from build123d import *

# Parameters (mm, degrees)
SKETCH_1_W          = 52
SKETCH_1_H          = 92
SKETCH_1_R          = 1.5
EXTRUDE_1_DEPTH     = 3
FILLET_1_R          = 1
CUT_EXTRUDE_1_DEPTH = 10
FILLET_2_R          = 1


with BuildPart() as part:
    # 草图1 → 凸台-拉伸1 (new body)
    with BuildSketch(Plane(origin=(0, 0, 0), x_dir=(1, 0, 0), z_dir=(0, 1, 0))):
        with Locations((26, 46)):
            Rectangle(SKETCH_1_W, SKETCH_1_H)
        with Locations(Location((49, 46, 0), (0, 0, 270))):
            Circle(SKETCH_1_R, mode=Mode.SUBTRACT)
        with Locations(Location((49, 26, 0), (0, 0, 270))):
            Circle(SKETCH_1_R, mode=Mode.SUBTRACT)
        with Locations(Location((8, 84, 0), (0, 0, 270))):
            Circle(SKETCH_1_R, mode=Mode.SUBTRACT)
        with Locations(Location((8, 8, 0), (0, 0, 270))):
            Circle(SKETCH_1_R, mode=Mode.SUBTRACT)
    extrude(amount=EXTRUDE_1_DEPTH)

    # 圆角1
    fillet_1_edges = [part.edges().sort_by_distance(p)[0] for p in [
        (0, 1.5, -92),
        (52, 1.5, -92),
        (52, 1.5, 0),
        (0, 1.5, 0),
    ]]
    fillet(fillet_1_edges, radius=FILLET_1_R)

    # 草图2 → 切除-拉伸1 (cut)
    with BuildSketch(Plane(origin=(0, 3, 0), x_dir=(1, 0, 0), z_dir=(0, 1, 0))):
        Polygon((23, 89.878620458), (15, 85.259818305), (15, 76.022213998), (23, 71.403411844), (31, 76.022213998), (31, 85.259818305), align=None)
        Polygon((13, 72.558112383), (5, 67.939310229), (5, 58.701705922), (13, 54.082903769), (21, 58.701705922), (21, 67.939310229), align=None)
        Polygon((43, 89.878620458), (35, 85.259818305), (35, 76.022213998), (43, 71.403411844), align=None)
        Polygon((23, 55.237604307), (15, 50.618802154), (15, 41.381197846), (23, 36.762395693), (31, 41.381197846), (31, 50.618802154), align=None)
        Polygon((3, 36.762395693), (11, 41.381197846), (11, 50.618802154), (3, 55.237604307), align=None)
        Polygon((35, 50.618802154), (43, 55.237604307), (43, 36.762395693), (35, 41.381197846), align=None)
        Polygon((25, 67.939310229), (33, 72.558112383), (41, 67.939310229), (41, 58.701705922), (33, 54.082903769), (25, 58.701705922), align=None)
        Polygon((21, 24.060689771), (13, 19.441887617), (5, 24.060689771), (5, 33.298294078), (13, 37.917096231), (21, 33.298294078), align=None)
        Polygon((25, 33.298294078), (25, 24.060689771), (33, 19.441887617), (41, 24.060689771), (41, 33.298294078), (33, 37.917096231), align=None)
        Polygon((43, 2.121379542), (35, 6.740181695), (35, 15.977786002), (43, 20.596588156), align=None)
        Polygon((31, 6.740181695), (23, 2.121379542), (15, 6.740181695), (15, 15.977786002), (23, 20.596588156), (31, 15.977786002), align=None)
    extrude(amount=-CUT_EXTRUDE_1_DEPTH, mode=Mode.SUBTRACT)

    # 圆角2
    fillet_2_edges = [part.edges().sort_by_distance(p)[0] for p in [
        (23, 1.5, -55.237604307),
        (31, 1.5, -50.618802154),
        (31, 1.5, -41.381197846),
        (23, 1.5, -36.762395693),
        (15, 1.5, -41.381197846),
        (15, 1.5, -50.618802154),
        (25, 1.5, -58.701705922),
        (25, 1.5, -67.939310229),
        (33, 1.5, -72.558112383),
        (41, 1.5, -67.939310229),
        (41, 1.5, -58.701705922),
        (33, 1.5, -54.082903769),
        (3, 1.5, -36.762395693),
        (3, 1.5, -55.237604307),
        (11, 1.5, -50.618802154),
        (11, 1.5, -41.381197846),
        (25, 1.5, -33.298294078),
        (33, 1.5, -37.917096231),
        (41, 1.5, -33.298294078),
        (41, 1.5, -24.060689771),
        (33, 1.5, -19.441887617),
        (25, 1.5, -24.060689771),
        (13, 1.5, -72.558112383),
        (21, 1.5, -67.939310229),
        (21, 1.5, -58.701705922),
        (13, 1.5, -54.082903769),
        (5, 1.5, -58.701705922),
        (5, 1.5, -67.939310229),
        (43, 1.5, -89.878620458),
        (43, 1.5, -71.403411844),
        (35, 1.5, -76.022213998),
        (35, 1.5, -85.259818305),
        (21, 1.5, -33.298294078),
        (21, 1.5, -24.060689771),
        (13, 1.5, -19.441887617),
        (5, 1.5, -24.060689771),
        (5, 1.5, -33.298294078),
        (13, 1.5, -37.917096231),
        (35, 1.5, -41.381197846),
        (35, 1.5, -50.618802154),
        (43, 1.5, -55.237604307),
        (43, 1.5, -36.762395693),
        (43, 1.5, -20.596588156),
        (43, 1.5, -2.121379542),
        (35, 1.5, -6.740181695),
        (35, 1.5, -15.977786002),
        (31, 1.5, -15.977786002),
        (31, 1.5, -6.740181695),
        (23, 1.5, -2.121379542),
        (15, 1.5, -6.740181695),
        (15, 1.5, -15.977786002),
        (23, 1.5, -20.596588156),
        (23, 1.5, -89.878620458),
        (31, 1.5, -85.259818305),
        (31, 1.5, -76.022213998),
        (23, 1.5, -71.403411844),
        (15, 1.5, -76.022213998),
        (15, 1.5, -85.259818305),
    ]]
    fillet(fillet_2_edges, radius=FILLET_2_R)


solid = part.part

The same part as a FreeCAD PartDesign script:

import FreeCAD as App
import Part
import Sketcher

V = App.Vector
Q = App.Units.Quantity


def edges_at(feature, points):
    """Names of the edges that pass closest to the given points."""
    edges = feature.Shape.Edges
    near = lambda p: min(range(len(edges)), key=lambda i: edges[i].distToShape(Part.Vertex(*p))[0])
    return sorted({f"Edge{near(p) + 1}" for p in points})


def add_polygon(sketch, points):
    """Adds a closed chain of lines whose ends are joined by coincident constraints."""
    first, n = sketch.GeometryCount, len(points)
    for a, b in zip(points, points[1:] + points[:1]):
        sketch.addGeometry(Part.LineSegment(App.Vector(*a, 0), App.Vector(*b, 0)), False)
    for i in range(n):
        sketch.addConstraint(Sketcher.Constraint("Coincident", first + i, 2, first + (i + 1) % n, 1))

doc = App.newDocument("Part")
body = doc.addObject("PartDesign::Body", "Body")

# Sketch on XZ plane
sketch1 = doc.addObject("Sketcher::SketchObject", "Sketch")
body.addObject(sketch1)
sketch1.AttachmentSupport = (doc.XZ_Plane, [""])
sketch1.MapMode = "FlatFace"
add_polygon(sketch1, [(0, -92), (0, 0), (52, 0), (52, -92)])  # lines 0-3
sketch1.addGeometry(Part.Circle(V(8, -8, 0), V(0, 0, 1), 1.5), False)  # 4
sketch1.addGeometry(Part.Circle(V(49, -26, 0), V(0, 0, 1), 1.5), False)  # 5
sketch1.addGeometry(Part.Circle(V(8, -84, 0), V(0, 0, 1), 1.5), False)  # 6
sketch1.addGeometry(Part.Circle(V(49, -46, 0), V(0, 0, 1), 1.5), False)  # 7
sketch1.addConstraint(Sketcher.Constraint("Vertical", 0))
sketch1.addConstraint(Sketcher.Constraint("Horizontal", 1))
sketch1.addConstraint(Sketcher.Constraint("Vertical", 2))
sketch1.addConstraint(Sketcher.Constraint("Horizontal", 3))
sketch1.addConstraint(Sketcher.Constraint("Coincident", 0, 2, -1, 1))
sketch1.addConstraint(Sketcher.Constraint("Equal", 4, 5))
sketch1.addConstraint(Sketcher.Constraint("Equal", 5, 6))
sketch1.addConstraint(Sketcher.Constraint("Equal", 6, 7))
sketch1.addConstraint(Sketcher.Constraint("Vertical", 4, 3, 6, 3))
sketch1.addConstraint(Sketcher.Constraint("Vertical", 5, 3, 7, 3))
sketch1.addConstraint(Sketcher.Constraint("Diameter", 4, Q("3 mm")))
sketch1.addConstraint(Sketcher.Constraint("DistanceX", 1, 1, 1, 2, Q("52 mm")))
sketch1.addConstraint(Sketcher.Constraint("DistanceY", 0, 1, 0, 2, Q("92 mm")))
sketch1.addConstraint(Sketcher.Constraint("DistanceX", -1, 1, 4, 3, Q("8 mm")))
sketch1.addConstraint(Sketcher.Constraint("DistanceY", 4, 3, -1, 1, Q("8 mm")))
sketch1.addConstraint(Sketcher.Constraint("DistanceX", -1, 1, 5, 3, Q("49 mm")))
sketch1.addConstraint(Sketcher.Constraint("DistanceY", 5, 3, -1, 1, Q("26 mm")))
sketch1.addConstraint(Sketcher.Constraint("DistanceY", 6, 3, -1, 1, Q("84 mm")))
sketch1.addConstraint(Sketcher.Constraint("DistanceY", 7, 3, -1, 1, Q("46 mm")))
pad1 = doc.addObject("PartDesign::Pad", "Pad")
body.addObject(pad1)
pad1.Profile = sketch1
pad1.Length = 3
pad1.Reversed = True
doc.recompute()

fillet = doc.addObject("PartDesign::Fillet", "Fillet")
body.addObject(fillet)
fillet.Base = (pad1, edges_at(pad1, [
    (0, 1.5, -92),
    (52, 1.5, -92),
    (52, 1.5, 0),
    (0, 1.5, 0),
]))
fillet.Radius = 1

# Sketch on XZ plane
sketch2 = doc.addObject("Sketcher::SketchObject", "Sketch001")
body.addObject(sketch2)
sketch2.AttachmentSupport = (doc.XZ_Plane, [""])
sketch2.MapMode = "FlatFace"
sketch2.AttachmentOffset = App.Placement(V(0, 0, -3), App.Rotation())
add_polygon(sketch2, [(23, -90), (15, -85), (15, -76), (23, -71), (31, -76), (31, -85)])  # lines 0-5
add_polygon(sketch2, [(13, -73), (5, -68), (5, -59), (13, -54), (21, -59), (21, -68)])  # lines 6-11
add_polygon(sketch2, [(43, -90), (35, -85), (35, -76), (43, -71)])  # lines 12-15
add_polygon(sketch2, [(23, -55), (15, -51), (15, -41), (23, -37), (31, -41), (31, -51)])  # lines 16-21
add_polygon(sketch2, [(3, -37), (11, -41), (11, -51), (3, -55)])  # lines 22-25
add_polygon(sketch2, [(43, -55), (35, -51), (35, -41), (43, -37)])  # lines 26-29
add_polygon(sketch2, [(33, -73), (25, -68), (25, -59), (33, -54), (41, -59), (41, -68)])  # lines 30-35
add_polygon(sketch2, [(13, -19), (21, -24), (21, -33), (13, -38), (5, -33), (5, -24)])  # lines 36-41
add_polygon(sketch2, [(25, -33), (25, -24), (33, -19), (41, -24), (41, -33), (33, -38)])  # lines 42-47
add_polygon(sketch2, [(35, -7), (43, -2), (43, -21), (35, -16)])  # lines 48-51
add_polygon(sketch2, [(23, -2), (31, -7), (31, -16), (23, -21), (15, -16), (15, -7)])  # lines 52-57
sketch2.addConstraint(Sketcher.Constraint("Vertical", 1))
sketch2.addConstraint(Sketcher.Constraint("Vertical", 4))
sketch2.addConstraint(Sketcher.Constraint("Vertical", 7))
sketch2.addConstraint(Sketcher.Constraint("Vertical", 10))
sketch2.addConstraint(Sketcher.Constraint("Vertical", 13))
sketch2.addConstraint(Sketcher.Constraint("Vertical", 15))
sketch2.addConstraint(Sketcher.Constraint("Vertical", 17))
sketch2.addConstraint(Sketcher.Constraint("Vertical", 20))
sketch2.addConstraint(Sketcher.Constraint("Vertical", 23))
sketch2.addConstraint(Sketcher.Constraint("Vertical", 25))
sketch2.addConstraint(Sketcher.Constraint("Vertical", 27))
sketch2.addConstraint(Sketcher.Constraint("Vertical", 29))
sketch2.addConstraint(Sketcher.Constraint("Vertical", 31))
sketch2.addConstraint(Sketcher.Constraint("Vertical", 34))
sketch2.addConstraint(Sketcher.Constraint("Vertical", 37))
sketch2.addConstraint(Sketcher.Constraint("Vertical", 40))
sketch2.addConstraint(Sketcher.Constraint("Vertical", 42))
sketch2.addConstraint(Sketcher.Constraint("Vertical", 45))
sketch2.addConstraint(Sketcher.Constraint("Vertical", 49))
sketch2.addConstraint(Sketcher.Constraint("Vertical", 51))
sketch2.addConstraint(Sketcher.Constraint("Vertical", 53))
sketch2.addConstraint(Sketcher.Constraint("Vertical", 56))
sketch2.addConstraint(Sketcher.Constraint("Parallel", 0, 3))
sketch2.addConstraint(Sketcher.Constraint("Parallel", 2, 5))
sketch2.addConstraint(Sketcher.Constraint("Parallel", 3, 6))
sketch2.addConstraint(Sketcher.Constraint("Parallel", 5, 8))
sketch2.addConstraint(Sketcher.Constraint("Parallel", 6, 9))
sketch2.addConstraint(Sketcher.Constraint("Parallel", 8, 11))
sketch2.addConstraint(Sketcher.Constraint("Parallel", 9, 12))
sketch2.addConstraint(Sketcher.Constraint("Parallel", 11, 14))
sketch2.addConstraint(Sketcher.Constraint("Parallel", 12, 16))
sketch2.addConstraint(Sketcher.Constraint("Parallel", 14, 18))
sketch2.addConstraint(Sketcher.Constraint("Parallel", 16, 19))
sketch2.addConstraint(Sketcher.Constraint("Parallel", 18, 21))
sketch2.addConstraint(Sketcher.Constraint("Parallel", 19, 22))
sketch2.addConstraint(Sketcher.Constraint("Parallel", 21, 24))
sketch2.addConstraint(Sketcher.Constraint("Parallel", 22, 26))
sketch2.addConstraint(Sketcher.Constraint("Parallel", 24, 28))
sketch2.addConstraint(Sketcher.Constraint("Parallel", 26, 30))
sketch2.addConstraint(Sketcher.Constraint("Parallel", 28, 32))
sketch2.addConstraint(Sketcher.Constraint("Parallel", 30, 33))
sketch2.addConstraint(Sketcher.Constraint("Parallel", 32, 35))
sketch2.addConstraint(Sketcher.Constraint("Parallel", 33, 36))
sketch2.addConstraint(Sketcher.Constraint("Parallel", 35, 38))
sketch2.addConstraint(Sketcher.Constraint("Parallel", 36, 39))
sketch2.addConstraint(Sketcher.Constraint("Parallel", 38, 41))
sketch2.addConstraint(Sketcher.Constraint("Parallel", 41, 43))
sketch2.addConstraint(Sketcher.Constraint("Parallel", 39, 44))
sketch2.addConstraint(Sketcher.Constraint("Parallel", 43, 46))
sketch2.addConstraint(Sketcher.Constraint("Parallel", 44, 47))
sketch2.addConstraint(Sketcher.Constraint("Parallel", 46, 48))
sketch2.addConstraint(Sketcher.Constraint("Parallel", 47, 50))
sketch2.addConstraint(Sketcher.Constraint("Parallel", 50, 52))
sketch2.addConstraint(Sketcher.Constraint("Parallel", 48, 54))
sketch2.addConstraint(Sketcher.Constraint("Parallel", 52, 55))
sketch2.addConstraint(Sketcher.Constraint("Parallel", 54, 57))
sketch2.addConstraint(Sketcher.Constraint("Horizontal", 1, 2, 3, 2))
sketch2.addConstraint(Sketcher.Constraint("Horizontal", 0, 2, 4, 2))
sketch2.addConstraint(Sketcher.Constraint("Horizontal", 7, 2, 9, 2))
sketch2.addConstraint(Sketcher.Constraint("Horizontal", 6, 2, 10, 2))
sketch2.addConstraint(Sketcher.Constraint("Horizontal", 4, 2, 12, 2))
sketch2.addConstraint(Sketcher.Constraint("Horizontal", 3, 2, 13, 2))
sketch2.addConstraint(Sketcher.Constraint("Horizontal", 2, 2, 14, 2))
sketch2.addConstraint(Sketcher.Constraint("Horizontal", 5, 2, 15, 2))
sketch2.addConstraint(Sketcher.Constraint("Horizontal", 17, 2, 19, 2))
sketch2.addConstraint(Sketcher.Constraint("Horizontal", 16, 2, 20, 2))
sketch2.addConstraint(Sketcher.Constraint("Horizontal", 19, 2, 22, 2))
sketch2.addConstraint(Sketcher.Constraint("Horizontal", 20, 2, 23, 2))
sketch2.addConstraint(Sketcher.Constraint("Horizontal", 21, 2, 24, 2))
sketch2.addConstraint(Sketcher.Constraint("Horizontal", 23, 2, 26, 2))
sketch2.addConstraint(Sketcher.Constraint("Horizontal", 22, 2, 27, 2))
sketch2.addConstraint(Sketcher.Constraint("Horizontal", 25, 2, 28, 2))
sketch2.addConstraint(Sketcher.Constraint("Horizontal", 10, 2, 30, 2))
sketch2.addConstraint(Sketcher.Constraint("Horizontal", 9, 2, 31, 2))
sketch2.addConstraint(Sketcher.Constraint("Horizontal", 8, 2, 32, 2))
sketch2.addConstraint(Sketcher.Constraint("Horizontal", 31, 2, 33, 2))
sketch2.addConstraint(Sketcher.Constraint("Horizontal", 30, 2, 34, 2))
sketch2.addConstraint(Sketcher.Constraint("Horizontal", 37, 2, 39, 2))
sketch2.addConstraint(Sketcher.Constraint("Horizontal", 36, 2, 40, 2))
sketch2.addConstraint(Sketcher.Constraint("Horizontal", 40, 2, 42, 2))
sketch2.addConstraint(Sketcher.Constraint("Horizontal", 41, 2, 43, 2))
sketch2.addConstraint(Sketcher.Constraint("Horizontal", 42, 2, 44, 2))
sketch2.addConstraint(Sketcher.Constraint("Horizontal", 39, 2, 45, 2))
sketch2.addConstraint(Sketcher.Constraint("Horizontal", 38, 2, 46, 2))
sketch2.addConstraint(Sketcher.Constraint("Horizontal", 51, 2, 52, 2))
sketch2.addConstraint(Sketcher.Constraint("Horizontal", 50, 2, 53, 2))
sketch2.addConstraint(Sketcher.Constraint("Horizontal", 49, 2, 54, 2))
sketch2.addConstraint(Sketcher.Constraint("Horizontal", 53, 2, 55, 2))
sketch2.addConstraint(Sketcher.Constraint("Horizontal", 52, 2, 56, 2))
sketch2.addConstraint(Sketcher.Constraint("Vertical", 1, 2, 16, 2))
sketch2.addConstraint(Sketcher.Constraint("Vertical", 5, 2, 18, 2))
sketch2.addConstraint(Sketcher.Constraint("Vertical", 13, 2, 26, 2))
sketch2.addConstraint(Sketcher.Constraint("Vertical", 10, 2, 36, 2))
sketch2.addConstraint(Sketcher.Constraint("Vertical", 11, 2, 38, 2))
sketch2.addConstraint(Sketcher.Constraint("Vertical", 31, 2, 42, 2))
sketch2.addConstraint(Sketcher.Constraint("Vertical", 29, 2, 48, 2))
sketch2.addConstraint(Sketcher.Constraint("Vertical", 27, 2, 50, 2))
sketch2.addConstraint(Sketcher.Constraint("Vertical", 20, 2, 52, 2))
sketch2.addConstraint(Sketcher.Constraint("Equal", 4, 7))
sketch2.addConstraint(Sketcher.Constraint("Equal", 13, 17))
sketch2.addConstraint(Sketcher.Constraint("Equal", 34, 37))
sketch2.addConstraint(Sketcher.Constraint("Equal", 29, 49))
sketch2.addConstraint(Sketcher.Constraint("Equal", 5, 6))
sketch2.addConstraint(Sketcher.Constraint("Angle", 0, Q("150 deg")))
sketch2.addConstraint(Sketcher.Constraint("DistanceX", -1, 1, 0, 2, Q("15 mm")))
sketch2.addConstraint(Sketcher.Constraint("DistanceX", -1, 1, 2, 2, Q("23 mm")))
sketch2.addConstraint(Sketcher.Constraint("DistanceX", -1, 1, 6, 2, Q("5 mm")))
sketch2.addConstraint(Sketcher.Constraint("DistanceX", -1, 1, 12, 2, Q("35 mm")))
sketch2.addConstraint(Sketcher.Constraint("DistanceX", -1, 1, 22, 2, Q("11 mm")))
sketch2.addConstraint(Sketcher.Constraint("DistanceX", -1, 1, 30, 2, Q("25 mm")))
sketch2.addConstraint(Sketcher.Constraint("DistanceY", 15, 2, 15, 1, Q("18.475209 mm")))
sketch2.addConstraint(Sketcher.Constraint("DistanceY", 2, 2, 6, 2, Q("3.464102 mm")))
sketch2.addConstraint(Sketcher.Constraint("DistanceY", 8, 2, 16, 2, Q("3.464102 mm")))
sketch2.addConstraint(Sketcher.Constraint("DistanceY", 18, 2, 37, 2, Q("3.464102 mm")))
sketch2.addConstraint(Sketcher.Constraint("DistanceY", 44, 2, 49, 2, Q("3.464102 mm")))
sketch2.addConstraint(Sketcher.Constraint("DistanceY", 0, 2, -1, 1, Q("85.259818 mm")))
pocket1 = doc.addObject("PartDesign::Pocket", "Pocket")
body.addObject(pocket1)
pocket1.Profile = sketch2
pocket1.Length = 10
pocket1.Reversed = True
doc.recompute()

fillet2 = doc.addObject("PartDesign::Fillet", "Fillet001")
body.addObject(fillet2)
fillet2.Base = (pocket1, edges_at(pocket1, [
    (23, 1.5, -55.238),
    (31, 1.5, -50.619),
    (31, 1.5, -41.381),
    (23, 1.5, -36.762),
    (15, 1.5, -41.381),
    (15, 1.5, -50.619),
    (25, 1.5, -58.702),
    (25, 1.5, -67.939),
    (33, 1.5, -72.558),
    (41, 1.5, -67.939),
    (41, 1.5, -58.702),
    (33, 1.5, -54.083),
    (3, 1.5, -36.762),
    (3, 1.5, -55.238),
    (11, 1.5, -50.619),
    (11, 1.5, -41.381),
    (25, 1.5, -33.298),
    (33, 1.5, -37.917),
    (41, 1.5, -33.298),
    (41, 1.5, -24.061),
    (33, 1.5, -19.442),
    (25, 1.5, -24.061),
    (13, 1.5, -72.558),
    (21, 1.5, -67.939),
    (21, 1.5, -58.702),
    (13, 1.5, -54.083),
    (5, 1.5, -58.702),
    (5, 1.5, -67.939),
    (43, 1.5, -89.879),
    (43, 1.5, -71.403),
    (35, 1.5, -76.022),
    (35, 1.5, -85.26),
    (21, 1.5, -33.298),
    (21, 1.5, -24.061),
    (13, 1.5, -19.442),
    (5, 1.5, -24.061),
    (5, 1.5, -33.298),
    (13, 1.5, -37.917),
    (35, 1.5, -41.381),
    (35, 1.5, -50.619),
    (43, 1.5, -55.238),
    (43, 1.5, -36.762),
    (43, 1.5, -20.597),
    (43, 1.5, -2.121),
    (35, 1.5, -6.74),
    (35, 1.5, -15.978),
    (31, 1.5, -15.978),
    (31, 1.5, -6.74),
    (23, 1.5, -2.121),
    (15, 1.5, -6.74),
    (15, 1.5, -15.978),
    (23, 1.5, -20.597),
    (23, 1.5, -89.879),
    (31, 1.5, -85.26),
    (31, 1.5, -76.022),
    (23, 1.5, -71.403),
    (15, 1.5, -76.022),
    (15, 1.5, -85.26),
]))
fillet2.Radius = 1

doc.recompute()
